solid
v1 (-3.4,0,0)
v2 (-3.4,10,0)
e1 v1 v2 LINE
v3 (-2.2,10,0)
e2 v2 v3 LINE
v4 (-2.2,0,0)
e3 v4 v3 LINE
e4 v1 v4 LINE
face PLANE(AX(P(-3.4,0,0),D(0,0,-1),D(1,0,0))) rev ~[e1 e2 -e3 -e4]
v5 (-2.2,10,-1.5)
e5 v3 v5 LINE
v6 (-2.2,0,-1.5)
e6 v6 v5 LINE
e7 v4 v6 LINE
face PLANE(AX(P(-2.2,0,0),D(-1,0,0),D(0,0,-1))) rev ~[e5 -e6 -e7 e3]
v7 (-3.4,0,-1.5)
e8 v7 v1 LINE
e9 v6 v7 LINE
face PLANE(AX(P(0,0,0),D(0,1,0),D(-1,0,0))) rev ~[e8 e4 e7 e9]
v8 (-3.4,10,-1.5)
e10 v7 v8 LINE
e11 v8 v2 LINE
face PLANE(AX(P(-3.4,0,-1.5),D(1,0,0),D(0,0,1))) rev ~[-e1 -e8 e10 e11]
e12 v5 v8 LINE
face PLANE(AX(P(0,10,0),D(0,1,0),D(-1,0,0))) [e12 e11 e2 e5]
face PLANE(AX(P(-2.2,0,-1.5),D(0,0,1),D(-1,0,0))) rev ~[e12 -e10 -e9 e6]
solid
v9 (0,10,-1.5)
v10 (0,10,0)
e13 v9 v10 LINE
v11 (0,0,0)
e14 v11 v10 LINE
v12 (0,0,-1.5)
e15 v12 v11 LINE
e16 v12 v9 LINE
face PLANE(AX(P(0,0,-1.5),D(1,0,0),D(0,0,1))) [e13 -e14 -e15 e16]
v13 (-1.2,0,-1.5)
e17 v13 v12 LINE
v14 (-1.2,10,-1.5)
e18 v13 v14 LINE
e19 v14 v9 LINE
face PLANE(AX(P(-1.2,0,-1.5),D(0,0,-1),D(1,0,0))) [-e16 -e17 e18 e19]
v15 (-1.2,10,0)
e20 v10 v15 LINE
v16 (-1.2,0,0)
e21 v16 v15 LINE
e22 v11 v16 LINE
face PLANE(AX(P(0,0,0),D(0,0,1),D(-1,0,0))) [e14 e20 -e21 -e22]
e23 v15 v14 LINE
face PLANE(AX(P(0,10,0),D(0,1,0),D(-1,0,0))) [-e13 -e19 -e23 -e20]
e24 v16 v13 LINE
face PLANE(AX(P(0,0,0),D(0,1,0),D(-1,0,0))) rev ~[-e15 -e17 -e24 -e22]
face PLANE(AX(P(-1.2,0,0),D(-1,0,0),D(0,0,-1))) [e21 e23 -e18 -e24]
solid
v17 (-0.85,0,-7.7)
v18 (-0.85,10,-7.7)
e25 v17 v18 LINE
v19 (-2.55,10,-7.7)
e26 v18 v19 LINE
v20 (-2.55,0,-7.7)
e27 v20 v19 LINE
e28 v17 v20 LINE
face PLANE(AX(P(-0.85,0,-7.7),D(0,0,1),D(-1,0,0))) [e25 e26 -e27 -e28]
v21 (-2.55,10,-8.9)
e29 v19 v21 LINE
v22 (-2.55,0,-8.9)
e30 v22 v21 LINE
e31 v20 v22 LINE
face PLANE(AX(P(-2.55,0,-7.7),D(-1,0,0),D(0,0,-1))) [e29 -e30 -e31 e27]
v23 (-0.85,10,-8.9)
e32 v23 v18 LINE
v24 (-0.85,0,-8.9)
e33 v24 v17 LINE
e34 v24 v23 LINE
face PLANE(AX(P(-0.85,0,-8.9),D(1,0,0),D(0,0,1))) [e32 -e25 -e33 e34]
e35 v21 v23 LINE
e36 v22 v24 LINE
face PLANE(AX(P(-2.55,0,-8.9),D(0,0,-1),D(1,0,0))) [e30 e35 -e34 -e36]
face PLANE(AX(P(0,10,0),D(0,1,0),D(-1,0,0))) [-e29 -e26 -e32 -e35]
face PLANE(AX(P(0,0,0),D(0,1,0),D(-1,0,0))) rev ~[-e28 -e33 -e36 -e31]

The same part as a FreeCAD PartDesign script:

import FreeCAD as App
import Part
import Sketcher
from FreeCAD import Vector


def add_polygon(sketch, points):
    """Adds a closed chain of lines whose ends are joined by coincident constraints."""
    first, n = sketch.GeometryCount, len(points)
    for a, b in zip(points, points[1:] + points[:1]):
        sketch.addGeometry(Part.LineSegment(App.Vector(*a, 0), App.Vector(*b, 0)), False)
    for i in range(n):
        sketch.addConstraint(Sketcher.Constraint("Coincident", first + i, 2, first + (i + 1) % n, 1))

doc = App.newDocument("Part")
body = doc.addObject("PartDesign::Body", "Body")
body.AllowCompound = True

# Sketch on XZ plane
sketch1 = doc.addObject("Sketcher::SketchObject", "Sketch")
body.addObject(sketch1)
sketch1.AttachmentSupport = (doc.XZ_Plane, [""])
sketch1.MapMode = "FlatFace"
add_polygon(sketch1, [(-1.2, 0), (0, 0), (0, -1.5), (-1.2, -1.5)])  # lines 0-3
add_polygon(sketch1, [(-3.4, -1.5), (-3.4, 0), (-2.2, 0), (-2.2, -1.5)])  # lines 4-7
add_polygon(sketch1, [(-2.5, -7.7), (-0.8, -7.7), (-0.8, -8.9), (-2.5, -8.9)])  # lines 8-11
sketch1.addConstraint([
    Sketcher.Constraint("Horizontal", 0),
    Sketcher.Constraint("Vertical", 1),
    Sketcher.Constraint("Horizontal", 2),
    Sketcher.Constraint("Vertical", 3),
    Sketcher.Constraint("Vertical", 4),
    Sketcher.Constraint("Horizontal", 5),
    Sketcher.Constraint("Vertical", 6),
    Sketcher.Constraint("Horizontal", 7),
    Sketcher.Constraint("Horizontal", 8),
    Sketcher.Constraint("Vertical", 9),
    Sketcher.Constraint("Horizontal", 10),
    Sketcher.Constraint("Vertical", 11),
    Sketcher.Constraint("Coincident", 0, 2, -1, 1),
    Sketcher.Constraint("PointOnObject", 4, 2, -1),
    Sketcher.Constraint("Horizontal", 2, 2, 6, 2),
    Sketcher.Constraint("Equal", 2, 5),
    Sketcher.Constraint("Equal", 7, 9),
    Sketcher.Constraint("DistanceX", 0, 1, 0, 2, 1.2),
    Sketcher.Constraint("DistanceX", 8, 1, 8, 2, 1.7),
    Sketcher.Constraint("DistanceY", 1, 2, 1, 1, 1.5),
    Sketcher.Constraint("DistanceX", 5, 2, 3, 2, 1.0),
    Sketcher.Constraint("DistanceY", 8, 2, 2, 2, 6.2),
    Sketcher.Constraint("DistanceX", 8, 2, -1, 1, 0.85),
])
pad1 = doc.addObject("PartDesign::Pad", "Pad")
body.addObject(pad1)
pad1.Profile = sketch1
pad1.Length = 10
pad1.Reversed = True

doc.recompute()
